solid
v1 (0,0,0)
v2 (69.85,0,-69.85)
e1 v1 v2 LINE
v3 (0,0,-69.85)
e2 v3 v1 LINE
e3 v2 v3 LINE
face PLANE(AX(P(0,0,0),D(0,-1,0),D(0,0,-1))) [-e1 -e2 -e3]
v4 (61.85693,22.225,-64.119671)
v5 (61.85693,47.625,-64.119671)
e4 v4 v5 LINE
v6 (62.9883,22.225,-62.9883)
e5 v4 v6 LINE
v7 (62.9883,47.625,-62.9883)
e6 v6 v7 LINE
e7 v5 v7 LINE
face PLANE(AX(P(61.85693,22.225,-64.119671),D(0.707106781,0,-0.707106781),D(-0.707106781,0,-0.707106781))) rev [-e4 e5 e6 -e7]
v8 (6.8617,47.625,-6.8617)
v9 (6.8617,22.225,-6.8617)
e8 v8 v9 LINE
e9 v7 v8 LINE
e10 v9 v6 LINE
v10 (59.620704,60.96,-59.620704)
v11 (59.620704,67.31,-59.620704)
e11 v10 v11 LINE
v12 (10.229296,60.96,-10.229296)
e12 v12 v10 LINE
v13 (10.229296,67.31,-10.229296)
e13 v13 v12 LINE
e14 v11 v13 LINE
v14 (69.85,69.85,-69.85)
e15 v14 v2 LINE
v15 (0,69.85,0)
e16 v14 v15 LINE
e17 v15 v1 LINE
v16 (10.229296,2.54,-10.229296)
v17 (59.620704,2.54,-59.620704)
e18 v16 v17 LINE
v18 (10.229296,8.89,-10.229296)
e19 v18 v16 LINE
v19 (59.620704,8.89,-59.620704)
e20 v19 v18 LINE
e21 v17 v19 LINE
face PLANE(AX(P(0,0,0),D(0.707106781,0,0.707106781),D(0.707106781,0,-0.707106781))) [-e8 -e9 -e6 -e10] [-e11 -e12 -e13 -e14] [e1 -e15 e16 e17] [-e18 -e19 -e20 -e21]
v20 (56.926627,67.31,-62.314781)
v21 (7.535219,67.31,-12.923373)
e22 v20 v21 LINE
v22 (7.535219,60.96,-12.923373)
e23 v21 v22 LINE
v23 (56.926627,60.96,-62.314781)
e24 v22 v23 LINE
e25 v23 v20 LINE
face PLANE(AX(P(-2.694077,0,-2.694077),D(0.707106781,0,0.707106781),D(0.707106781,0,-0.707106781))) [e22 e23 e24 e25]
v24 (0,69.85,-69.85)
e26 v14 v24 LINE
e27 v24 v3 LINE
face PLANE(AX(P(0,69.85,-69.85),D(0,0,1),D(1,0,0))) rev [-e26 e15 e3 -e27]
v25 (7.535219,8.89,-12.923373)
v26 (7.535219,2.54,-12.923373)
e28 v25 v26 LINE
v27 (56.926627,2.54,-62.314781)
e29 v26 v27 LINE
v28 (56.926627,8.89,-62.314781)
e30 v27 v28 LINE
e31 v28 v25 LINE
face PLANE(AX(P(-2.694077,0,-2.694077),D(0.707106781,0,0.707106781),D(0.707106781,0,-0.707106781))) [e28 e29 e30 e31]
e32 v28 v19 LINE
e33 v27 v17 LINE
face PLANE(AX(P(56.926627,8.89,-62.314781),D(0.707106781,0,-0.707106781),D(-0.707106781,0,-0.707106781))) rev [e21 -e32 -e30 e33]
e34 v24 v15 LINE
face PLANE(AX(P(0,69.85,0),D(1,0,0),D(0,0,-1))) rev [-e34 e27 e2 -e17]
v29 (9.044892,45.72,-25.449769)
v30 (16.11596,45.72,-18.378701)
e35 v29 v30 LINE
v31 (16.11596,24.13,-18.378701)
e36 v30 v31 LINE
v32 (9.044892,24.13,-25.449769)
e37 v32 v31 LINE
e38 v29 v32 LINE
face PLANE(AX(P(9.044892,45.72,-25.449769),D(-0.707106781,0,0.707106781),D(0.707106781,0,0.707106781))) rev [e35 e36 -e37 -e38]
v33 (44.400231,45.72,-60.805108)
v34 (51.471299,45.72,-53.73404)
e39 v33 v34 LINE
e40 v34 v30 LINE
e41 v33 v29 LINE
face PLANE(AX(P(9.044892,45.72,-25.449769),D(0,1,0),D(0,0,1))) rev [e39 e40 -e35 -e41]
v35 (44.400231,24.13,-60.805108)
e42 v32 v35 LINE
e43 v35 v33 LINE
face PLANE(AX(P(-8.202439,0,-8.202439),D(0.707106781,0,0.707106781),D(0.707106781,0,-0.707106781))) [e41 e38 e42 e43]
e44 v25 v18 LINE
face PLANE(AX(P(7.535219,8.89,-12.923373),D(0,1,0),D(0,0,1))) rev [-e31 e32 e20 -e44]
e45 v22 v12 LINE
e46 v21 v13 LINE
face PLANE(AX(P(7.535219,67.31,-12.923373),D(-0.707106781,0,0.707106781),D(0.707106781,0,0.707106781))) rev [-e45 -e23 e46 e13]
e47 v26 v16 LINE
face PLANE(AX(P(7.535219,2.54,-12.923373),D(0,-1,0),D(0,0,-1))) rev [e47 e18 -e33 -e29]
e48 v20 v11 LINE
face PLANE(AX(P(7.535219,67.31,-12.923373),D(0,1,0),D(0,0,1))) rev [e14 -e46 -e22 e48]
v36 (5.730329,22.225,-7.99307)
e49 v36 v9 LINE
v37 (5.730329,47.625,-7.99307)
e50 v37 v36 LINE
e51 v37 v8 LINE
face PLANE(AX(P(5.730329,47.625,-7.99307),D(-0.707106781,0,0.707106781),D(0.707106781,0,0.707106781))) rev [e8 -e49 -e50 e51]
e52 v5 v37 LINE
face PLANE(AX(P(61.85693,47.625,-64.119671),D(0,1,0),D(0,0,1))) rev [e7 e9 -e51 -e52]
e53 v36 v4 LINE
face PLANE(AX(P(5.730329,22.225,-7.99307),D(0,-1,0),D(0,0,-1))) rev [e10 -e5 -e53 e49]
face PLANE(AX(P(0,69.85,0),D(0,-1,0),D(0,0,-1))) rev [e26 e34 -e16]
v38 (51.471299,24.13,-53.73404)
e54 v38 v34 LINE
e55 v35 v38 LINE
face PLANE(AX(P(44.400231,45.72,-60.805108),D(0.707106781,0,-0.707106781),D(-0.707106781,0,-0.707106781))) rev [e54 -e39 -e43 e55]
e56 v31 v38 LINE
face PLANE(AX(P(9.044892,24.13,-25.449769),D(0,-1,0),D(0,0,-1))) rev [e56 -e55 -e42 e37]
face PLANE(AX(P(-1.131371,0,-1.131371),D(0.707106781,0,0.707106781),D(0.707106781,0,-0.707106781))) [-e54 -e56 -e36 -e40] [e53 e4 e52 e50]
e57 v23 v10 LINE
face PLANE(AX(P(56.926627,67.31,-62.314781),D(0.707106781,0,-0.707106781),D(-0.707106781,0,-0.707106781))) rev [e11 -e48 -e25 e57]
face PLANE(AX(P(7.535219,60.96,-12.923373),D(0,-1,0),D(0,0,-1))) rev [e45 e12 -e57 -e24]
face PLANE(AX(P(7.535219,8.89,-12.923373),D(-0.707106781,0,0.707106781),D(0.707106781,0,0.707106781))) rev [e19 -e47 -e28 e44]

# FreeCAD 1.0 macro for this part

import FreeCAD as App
import Part
import Sketcher
from FreeCAD import Vector
Q = App.Units.Quantity

doc = App.newDocument("Part")
body = doc.addObject("PartDesign::Body", "Body")

sketch1 = body.newObject("Sketcher::SketchObject", "Sketch")
sketch1.AttachmentSupport = (doc.getObject("XZ_Plane"), [""])
sketch1.MapMode = "FlatFace"
sketch1.addGeometry(Part.LineSegment(Vector(0, -69.85, 0), Vector(0, 0, 0)), False)
sketch1.addGeometry(Part.LineSegment(Vector(0, 0, 0), Vector(69.85, 0, 0)), False)
sketch1.addGeometry(Part.LineSegment(Vector(69.85, 0, 0), Vector(69.85, -69.85, 0)), False)
sketch1.addGeometry(Part.LineSegment(Vector(69.85, -69.85, 0), Vector(0, -69.85, 0)), False)
sketch1.addConstraint(Sketcher.Constraint("Coincident", 0, 2, 1, 1))
sketch1.addConstraint(Sketcher.Constraint("Coincident", 1, 2, 2, 1))
sketch1.addConstraint(Sketcher.Constraint("Coincident", 2, 2, 3, 1))
sketch1.addConstraint(Sketcher.Constraint("Coincident", 3, 2, 0, 1))
sketch1.addConstraint(Sketcher.Constraint("Vertical", 0))
sketch1.addConstraint(Sketcher.Constraint("Horizontal", 1))
sketch1.addConstraint(Sketcher.Constraint("Vertical", 2))
sketch1.addConstraint(Sketcher.Constraint("Horizontal", 3))
sketch1.addConstraint(Sketcher.Constraint("Coincident", 0, 2, -1, 1))
sketch1.addConstraint(Sketcher.Constraint("Equal", 3, 0))
sketch1.addConstraint(Sketcher.Constraint("DistanceX", 1, 1, 1, 2, Q("2.75 in")))
pad1 = body.newObject("PartDesign::Pad", "Pad")
pad1.Profile = sketch1
pad1.Length = Q("2.75 in")
pad1.Reversed = True

sketch2 = body.newObject("Sketcher::SketchObject", "Sketch001")
sketch2.Placement = App.Placement(Vector(0, 0, 0), App.Rotation(Vector(0.707106781, 0, -0.707106781), Vector(0, 0.999999999, 0), Vector(0.707106781, 0, 0.707106781), "ZXY"))
sketch2.addGeometry(Part.LineSegment(Vector(98.782817, 0, 0), Vector(98.782817, 69.85, 0)), False)
sketch2.addGeometry(Part.LineSegment(Vector(98.782817, 69.85, 0), Vector(0, 69.85, 0)), False)
sketch2.addGeometry(Part.LineSegment(Vector(0, 69.85, 0), Vector(0, 0, 0)), False)
sketch2.addGeometry(Part.LineSegment(Vector(0, 0, 0), Vector(98.782817, 0, 0)), False)
sketch2.addConstraint(Sketcher.Constraint("Coincident", 0, 2, 1, 1))
sketch2.addConstraint(Sketcher.Constraint("Coincident", 1, 2, 2, 1))
sketch2.addConstraint(Sketcher.Constraint("Coincident", 2, 2, 3, 1))
sketch2.addConstraint(Sketcher.Constraint("Coincident", 3, 2, 0, 1))
sketch2.addConstraint(Sketcher.Constraint("Vertical", 0))
sketch2.addConstraint(Sketcher.Constraint("Horizontal", 1))
sketch2.addConstraint(Sketcher.Constraint("Vertical", 2))
sketch2.addConstraint(Sketcher.Constraint("Horizontal", 3))
sketch2.addConstraint(Sketcher.Constraint("Coincident", 2, 2, -1, 1))
sketch2.addConstraint(Sketcher.Constraint("DistanceY", 0, 1, 0, 2, Q("2.75 in")))
sketch2.addConstraint(Sketcher.Constraint("DistanceX", 1, 2, 1, 1, 98.782817))
pocket1 = body.newObject("PartDesign::Pocket", "Pocket")
pocket1.Profile = sketch2
pocket1.Length = 100
pocket1.Reversed = True

sketch3 = body.newObject("Sketcher::SketchObject", "Sketch002")
sketch3.Placement = App.Placement(Vector(0, 0, 0), App.Rotation(Vector(0.707106781, 0, -0.707106781), Vector(0, 0.999999999, 0), Vector(0.707106781, 0, 0.707106781), "ZXY"))
sketch3.addGeometry(Part.LineSegment(Vector(14.466409, 8.89, 0), Vector(14.466409, 2.54, 0)), False)
sketch3.addGeometry(Part.LineSegment(Vector(14.466409, 2.54, 0), Vector(84.316409, 2.54, 0)), False)
sketch3.addGeometry(Part.LineSegment(Vector(84.316409, 2.54, 0), Vector(84.316409, 8.89, 0)), False)
sketch3.addGeometry(Part.LineSegment(Vector(84.316409, 8.89, 0), Vector(14.466409, 8.89, 0)), False)
sketch3.addGeometry(Part.LineSegment(Vector(14.466409, 67.31, 0), Vector(14.466409, 60.96, 0)), False)
sketch3.addGeometry(Part.LineSegment(Vector(14.466409, 60.96, 0), Vector(84.316409, 60.96, 0)), False)
sketch3.addGeometry(Part.LineSegment(Vector(84.316409, 60.96, 0), Vector(84.316409, 67.31, 0)), False)
sketch3.addGeometry(Part.LineSegment(Vector(84.316409, 67.31, 0), Vector(14.466409, 67.31, 0)), False)
sketch3.addConstraint(Sketcher.Constraint("Coincident", 0, 2, 1, 1))
sketch3.addConstraint(Sketcher.Constraint("Coincident", 1, 2, 2, 1))
sketch3.addConstraint(Sketcher.Constraint("Coincident", 2, 2, 3, 1))
sketch3.addConstraint(Sketcher.Constraint("Coincident", 3, 2, 0, 1))
sketch3.addConstraint(Sketcher.Constraint("Coincident", 4, 2, 5, 1))
sketch3.addConstraint(Sketcher.Constraint("Coincident", 5, 2, 6, 1))
sketch3.addConstraint(Sketcher.Constraint("Coincident", 6, 2, 7, 1))
sketch3.addConstraint(Sketcher.Constraint("Coincident", 7, 2, 4, 1))
sketch3.addConstraint(Sketcher.Constraint("Vertical", 0))
sketch3.addConstraint(Sketcher.Constraint("Horizontal", 1))
sketch3.addConstraint(Sketcher.Constraint("Vertical", 2))
sketch3.addConstraint(Sketcher.Constraint("Horizontal", 3))
sketch3.addConstraint(Sketcher.Constraint("Vertical", 4))
sketch3.addConstraint(Sketcher.Constraint("Horizontal", 5))
sketch3.addConstraint(Sketcher.Constraint("Vertical", 6))
sketch3.addConstraint(Sketcher.Constraint("Horizontal", 7))
sketch3.addConstraint(Sketcher.Constraint("Vertical", 3, 2, 4, 2))
sketch3.addConstraint(Sketcher.Constraint("Vertical", 2, 2, 5, 2))
sketch3.addConstraint(Sketcher.Constraint("Equal", 2, 4))
sketch3.addConstraint(Sketcher.Constraint("DistanceX", 1, 1, 1, 2, Q("2.75 in")))
sketch3.addConstraint(Sketcher.Constraint("DistanceY", 0, 2, 0, 1, Q("0.25 in")))
sketch3.addConstraint(Sketcher.Constraint("DistanceY", -1, 1, 0, 2, Q("0.1 in")))
sketch3.addConstraint(Sketcher.Constraint("DistanceY", -1, 1, 4, 2, Q("2.4 in")))
sketch3.addConstraint(Sketcher.Constraint("DistanceX", -1, 1, 0, 2, 14.466409))
pocket2 = body.newObject("PartDesign::Pocket", "Pocket001")
pocket2.Profile = sketch3
pocket2.Length = Q("0.15 in")

sketch4 = body.newObject("Sketcher::SketchObject", "Sketch003")
sketch4.Placement = App.Placement(Vector(0, 0, 0), App.Rotation(Vector(0.707106781, 0, -0.707106781), Vector(0, 0.999999999, 0), Vector(0.707106781, 0, 0.707106781), "ZXY"))
sketch4.addGeometry(Part.LineSegment(Vector(9.703909, 47.625, 0), Vector(9.703909, 22.225, 0)), False)
sketch4.addGeometry(Part.LineSegment(Vector(9.703909, 22.225, 0), Vector(89.078909, 22.225, 0)), False)
sketch4.addGeometry(Part.LineSegment(Vector(89.078909, 22.225, 0), Vector(89.078909, 47.625, 0)), False)
sketch4.addGeometry(Part.LineSegment(Vector(89.078909, 47.625, 0), Vector(9.703909, 47.625, 0)), False)
sketch4.addConstraint(Sketcher.Constraint("Coincident", 0, 2, 1, 1))
sketch4.addConstraint(Sketcher.Constraint("Coincident", 1, 2, 2, 1))
sketch4.addConstraint(Sketcher.Constraint("Coincident", 2, 2, 3, 1))
sketch4.addConstraint(Sketcher.Constraint("Coincident", 3, 2, 0, 1))
sketch4.addConstraint(Sketcher.Constraint("Vertical", 0))
sketch4.addConstraint(Sketcher.Constraint("Horizontal", 1))
sketch4.addConstraint(Sketcher.Constraint("Vertical", 2))
sketch4.addConstraint(Sketcher.Constraint("Horizontal", 3))
sketch4.addConstraint(Sketcher.Constraint("DistanceY", 0, 2, 0, 1, Q("1 in")))
sketch4.addConstraint(Sketcher.Constraint("DistanceX", 1, 1, 1, 2, Q("3.125 in")))
sketch4.addConstraint(Sketcher.Constraint("DistanceY", -1, 1, 0, 2, Q("0.875 in")))
sketch4.addConstraint(Sketcher.Constraint("DistanceX", -1, 1, 0, 2, 9.703909))
pocket3 = body.newObject("PartDesign::Pocket", "Pocket002")
pocket3.Profile = sketch4
pocket3.Length = 1.6

sketch5 = body.newObject("Sketcher::SketchObject", "Sketch004")
sketch5.Placement = App.Placement(Vector(-1.131371, 0, -1.131371), App.Rotation(Vector(0.707106781, 0, -0.707106781), Vector(0, 0.999999999, 0), Vector(0.707106781, 0, 0.707106781), "ZXY"))
sketch5.addGeometry(Part.LineSegment(Vector(24.391409, 45.72, 0), Vector(24.391409, 24.13, 0)), False)
sketch5.addGeometry(Part.LineSegment(Vector(24.391409, 24.13, 0), Vector(74.391409, 24.13, 0)), False)
sketch5.addGeometry(Part.LineSegment(Vector(74.391409, 24.13, 0), Vector(74.391409, 45.72, 0)), False)
sketch5.addGeometry(Part.LineSegment(Vector(74.391409, 45.72, 0), Vector(24.391409, 45.72, 0)), False)
sketch5.addConstraint(Sketcher.Constraint("Coincident", 0, 2, 1, 1))
sketch5.addConstraint(Sketcher.Constraint("Coincident", 1, 2, 2, 1))
sketch5.addConstraint(Sketcher.Constraint("Coincident", 2, 2, 3, 1))
sketch5.addConstraint(Sketcher.Constraint("Coincident", 3, 2, 0, 1))
sketch5.addConstraint(Sketcher.Constraint("Vertical", 0))
sketch5.addConstraint(Sketcher.Constraint("Horizontal", 1))
sketch5.addConstraint(Sketcher.Constraint("Vertical", 2))
sketch5.addConstraint(Sketcher.Constraint("Horizontal", 3))
sketch5.addConstraint(Sketcher.Constraint("DistanceY", 0, 2, 0, 1, Q("0.85 in")))
sketch5.addConstraint(Sketcher.Constraint("DistanceY", -1, 1, 2, 2, Q("1.8 in")))
sketch5.addConstraint(Sketcher.Constraint("DistanceX", 1, 1, 1, 2, 50.0))
sketch5.addConstraint(Sketcher.Constraint("DistanceX", -1, 1, 0, 2, 24.391409))
pocket4 = body.newObject("PartDesign::Pocket", "Pocket003")
pocket4.Profile = sketch5
pocket4.Length = 10

doc.recompute()
